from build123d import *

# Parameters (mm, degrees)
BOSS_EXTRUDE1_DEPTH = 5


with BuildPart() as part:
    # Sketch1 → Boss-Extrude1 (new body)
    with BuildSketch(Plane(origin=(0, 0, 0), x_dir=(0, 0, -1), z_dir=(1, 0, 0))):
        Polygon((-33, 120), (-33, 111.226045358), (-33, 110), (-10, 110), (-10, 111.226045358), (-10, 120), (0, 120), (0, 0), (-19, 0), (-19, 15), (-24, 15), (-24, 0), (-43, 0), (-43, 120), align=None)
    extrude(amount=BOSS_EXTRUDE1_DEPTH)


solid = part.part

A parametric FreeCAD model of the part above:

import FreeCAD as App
import Part
import Sketcher
Q = App.Units.Quantity

doc = App.newDocument("Part")
body = doc.addObject("PartDesign::Body", "Body")

sketch1 = body.newObject("Sketcher::SketchObject", "Sketch")
sketch1.AttachmentSupport = (doc.getObject("YZ_Plane"), [""])
sketch1.MapMode = "FlatFace"
sketch1.addGeometry([
    Part.LineSegment(App.Vector(110, 33, 0), App.Vector(120, 33, 0)),
    Part.LineSegment(App.Vector(120, 33, 0), App.Vector(120, 43, 0)),
    Part.LineSegment(App.Vector(120, 43, 0), App.Vector(0, 43, 0)),
    Part.LineSegment(App.Vector(0, 43, 0), App.Vector(0, 24, 0)),
    Part.LineSegment(App.Vector(0, 24, 0), App.Vector(15, 24, 0)),
    Part.LineSegment(App.Vector(15, 24, 0), App.Vector(15, 19, 0)),
    Part.LineSegment(App.Vector(15, 19, 0), App.Vector(0, 19, 0)),
    Part.LineSegment(App.Vector(0, 19, 0), App.Vector(0, 0, 0)),
    Part.LineSegment(App.Vector(0, 0, 0), App.Vector(120, 0, 0)),
    Part.LineSegment(App.Vector(120, 0, 0), App.Vector(120, 10, 0)),
    Part.LineSegment(App.Vector(120, 10, 0), App.Vector(110, 10, 0)),
    Part.LineSegment(App.Vector(110, 10, 0), App.Vector(110, 33, 0)),
], False)
sketch1.addConstraint([
    Sketcher.Constraint("Coincident", 0, 2, 1, 1),
    Sketcher.Constraint("Coincident", 1, 2, 2, 1),
    Sketcher.Constraint("Coincident", 2, 2, 3, 1),
    Sketcher.Constraint("Coincident", 3, 2, 4, 1),
    Sketcher.Constraint("Coincident", 4, 2, 5, 1),
    Sketcher.Constraint("Coincident", 5, 2, 6, 1),
    Sketcher.Constraint("Coincident", 6, 2, 7, 1),
    Sketcher.Constraint("Coincident", 7, 2, 8, 1),
    Sketcher.Constraint("Coincident", 8, 2, 9, 1),
    Sketcher.Constraint("Coincident", 9, 2, 10, 1),
    Sketcher.Constraint("Coincident", 10, 2, 11, 1),
    Sketcher.Constraint("Coincident", 11, 2, 0, 1),
    Sketcher.Constraint("Horizontal", 0),
    Sketcher.Constraint("Vertical", 1),
    Sketcher.Constraint("Horizontal", 2),
    Sketcher.Constraint("Vertical", 3),
    Sketcher.Constraint("Horizontal", 4),
    Sketcher.Constraint("Vertical", 5),
    Sketcher.Constraint("Horizontal", 6),
    Sketcher.Constraint("Vertical", 7),
    Sketcher.Constraint("Horizontal", 8),
    Sketcher.Constraint("Vertical", 9),
    Sketcher.Constraint("Horizontal", 10),
    Sketcher.Constraint("Vertical", 11),
    Sketcher.Constraint("Coincident", 7, 2, -1, 1),
    Sketcher.Constraint("PointOnObject", 2, 2, -2),
    Sketcher.Constraint("Vertical", 1, 2, 8, 2),
    Sketcher.Constraint("Equal", 10, 1),
    Sketcher.Constraint("Equal", 3, 7),
    Sketcher.Constraint("Equal", 1, 9),
    Sketcher.Constraint("DistanceX", 0, 1, 0, 2, Q("10 mm")),
    Sketcher.Constraint("DistanceX", 2, 2, 2, 1, Q("120 mm")),
    Sketcher.Constraint("DistanceX", 4, 1, 4, 2, Q("15 mm")),
    Sketcher.Constraint("DistanceY", 3, 2, 3, 1, Q("19 mm")),
    Sketcher.Constraint("DistanceY", 5, 2, 5, 1, Q("5 mm")),
])
pad1 = body.newObject("PartDesign::Pad", "Pad")
pad1.Profile = sketch1
pad1.Length = 5

doc.recompute()
